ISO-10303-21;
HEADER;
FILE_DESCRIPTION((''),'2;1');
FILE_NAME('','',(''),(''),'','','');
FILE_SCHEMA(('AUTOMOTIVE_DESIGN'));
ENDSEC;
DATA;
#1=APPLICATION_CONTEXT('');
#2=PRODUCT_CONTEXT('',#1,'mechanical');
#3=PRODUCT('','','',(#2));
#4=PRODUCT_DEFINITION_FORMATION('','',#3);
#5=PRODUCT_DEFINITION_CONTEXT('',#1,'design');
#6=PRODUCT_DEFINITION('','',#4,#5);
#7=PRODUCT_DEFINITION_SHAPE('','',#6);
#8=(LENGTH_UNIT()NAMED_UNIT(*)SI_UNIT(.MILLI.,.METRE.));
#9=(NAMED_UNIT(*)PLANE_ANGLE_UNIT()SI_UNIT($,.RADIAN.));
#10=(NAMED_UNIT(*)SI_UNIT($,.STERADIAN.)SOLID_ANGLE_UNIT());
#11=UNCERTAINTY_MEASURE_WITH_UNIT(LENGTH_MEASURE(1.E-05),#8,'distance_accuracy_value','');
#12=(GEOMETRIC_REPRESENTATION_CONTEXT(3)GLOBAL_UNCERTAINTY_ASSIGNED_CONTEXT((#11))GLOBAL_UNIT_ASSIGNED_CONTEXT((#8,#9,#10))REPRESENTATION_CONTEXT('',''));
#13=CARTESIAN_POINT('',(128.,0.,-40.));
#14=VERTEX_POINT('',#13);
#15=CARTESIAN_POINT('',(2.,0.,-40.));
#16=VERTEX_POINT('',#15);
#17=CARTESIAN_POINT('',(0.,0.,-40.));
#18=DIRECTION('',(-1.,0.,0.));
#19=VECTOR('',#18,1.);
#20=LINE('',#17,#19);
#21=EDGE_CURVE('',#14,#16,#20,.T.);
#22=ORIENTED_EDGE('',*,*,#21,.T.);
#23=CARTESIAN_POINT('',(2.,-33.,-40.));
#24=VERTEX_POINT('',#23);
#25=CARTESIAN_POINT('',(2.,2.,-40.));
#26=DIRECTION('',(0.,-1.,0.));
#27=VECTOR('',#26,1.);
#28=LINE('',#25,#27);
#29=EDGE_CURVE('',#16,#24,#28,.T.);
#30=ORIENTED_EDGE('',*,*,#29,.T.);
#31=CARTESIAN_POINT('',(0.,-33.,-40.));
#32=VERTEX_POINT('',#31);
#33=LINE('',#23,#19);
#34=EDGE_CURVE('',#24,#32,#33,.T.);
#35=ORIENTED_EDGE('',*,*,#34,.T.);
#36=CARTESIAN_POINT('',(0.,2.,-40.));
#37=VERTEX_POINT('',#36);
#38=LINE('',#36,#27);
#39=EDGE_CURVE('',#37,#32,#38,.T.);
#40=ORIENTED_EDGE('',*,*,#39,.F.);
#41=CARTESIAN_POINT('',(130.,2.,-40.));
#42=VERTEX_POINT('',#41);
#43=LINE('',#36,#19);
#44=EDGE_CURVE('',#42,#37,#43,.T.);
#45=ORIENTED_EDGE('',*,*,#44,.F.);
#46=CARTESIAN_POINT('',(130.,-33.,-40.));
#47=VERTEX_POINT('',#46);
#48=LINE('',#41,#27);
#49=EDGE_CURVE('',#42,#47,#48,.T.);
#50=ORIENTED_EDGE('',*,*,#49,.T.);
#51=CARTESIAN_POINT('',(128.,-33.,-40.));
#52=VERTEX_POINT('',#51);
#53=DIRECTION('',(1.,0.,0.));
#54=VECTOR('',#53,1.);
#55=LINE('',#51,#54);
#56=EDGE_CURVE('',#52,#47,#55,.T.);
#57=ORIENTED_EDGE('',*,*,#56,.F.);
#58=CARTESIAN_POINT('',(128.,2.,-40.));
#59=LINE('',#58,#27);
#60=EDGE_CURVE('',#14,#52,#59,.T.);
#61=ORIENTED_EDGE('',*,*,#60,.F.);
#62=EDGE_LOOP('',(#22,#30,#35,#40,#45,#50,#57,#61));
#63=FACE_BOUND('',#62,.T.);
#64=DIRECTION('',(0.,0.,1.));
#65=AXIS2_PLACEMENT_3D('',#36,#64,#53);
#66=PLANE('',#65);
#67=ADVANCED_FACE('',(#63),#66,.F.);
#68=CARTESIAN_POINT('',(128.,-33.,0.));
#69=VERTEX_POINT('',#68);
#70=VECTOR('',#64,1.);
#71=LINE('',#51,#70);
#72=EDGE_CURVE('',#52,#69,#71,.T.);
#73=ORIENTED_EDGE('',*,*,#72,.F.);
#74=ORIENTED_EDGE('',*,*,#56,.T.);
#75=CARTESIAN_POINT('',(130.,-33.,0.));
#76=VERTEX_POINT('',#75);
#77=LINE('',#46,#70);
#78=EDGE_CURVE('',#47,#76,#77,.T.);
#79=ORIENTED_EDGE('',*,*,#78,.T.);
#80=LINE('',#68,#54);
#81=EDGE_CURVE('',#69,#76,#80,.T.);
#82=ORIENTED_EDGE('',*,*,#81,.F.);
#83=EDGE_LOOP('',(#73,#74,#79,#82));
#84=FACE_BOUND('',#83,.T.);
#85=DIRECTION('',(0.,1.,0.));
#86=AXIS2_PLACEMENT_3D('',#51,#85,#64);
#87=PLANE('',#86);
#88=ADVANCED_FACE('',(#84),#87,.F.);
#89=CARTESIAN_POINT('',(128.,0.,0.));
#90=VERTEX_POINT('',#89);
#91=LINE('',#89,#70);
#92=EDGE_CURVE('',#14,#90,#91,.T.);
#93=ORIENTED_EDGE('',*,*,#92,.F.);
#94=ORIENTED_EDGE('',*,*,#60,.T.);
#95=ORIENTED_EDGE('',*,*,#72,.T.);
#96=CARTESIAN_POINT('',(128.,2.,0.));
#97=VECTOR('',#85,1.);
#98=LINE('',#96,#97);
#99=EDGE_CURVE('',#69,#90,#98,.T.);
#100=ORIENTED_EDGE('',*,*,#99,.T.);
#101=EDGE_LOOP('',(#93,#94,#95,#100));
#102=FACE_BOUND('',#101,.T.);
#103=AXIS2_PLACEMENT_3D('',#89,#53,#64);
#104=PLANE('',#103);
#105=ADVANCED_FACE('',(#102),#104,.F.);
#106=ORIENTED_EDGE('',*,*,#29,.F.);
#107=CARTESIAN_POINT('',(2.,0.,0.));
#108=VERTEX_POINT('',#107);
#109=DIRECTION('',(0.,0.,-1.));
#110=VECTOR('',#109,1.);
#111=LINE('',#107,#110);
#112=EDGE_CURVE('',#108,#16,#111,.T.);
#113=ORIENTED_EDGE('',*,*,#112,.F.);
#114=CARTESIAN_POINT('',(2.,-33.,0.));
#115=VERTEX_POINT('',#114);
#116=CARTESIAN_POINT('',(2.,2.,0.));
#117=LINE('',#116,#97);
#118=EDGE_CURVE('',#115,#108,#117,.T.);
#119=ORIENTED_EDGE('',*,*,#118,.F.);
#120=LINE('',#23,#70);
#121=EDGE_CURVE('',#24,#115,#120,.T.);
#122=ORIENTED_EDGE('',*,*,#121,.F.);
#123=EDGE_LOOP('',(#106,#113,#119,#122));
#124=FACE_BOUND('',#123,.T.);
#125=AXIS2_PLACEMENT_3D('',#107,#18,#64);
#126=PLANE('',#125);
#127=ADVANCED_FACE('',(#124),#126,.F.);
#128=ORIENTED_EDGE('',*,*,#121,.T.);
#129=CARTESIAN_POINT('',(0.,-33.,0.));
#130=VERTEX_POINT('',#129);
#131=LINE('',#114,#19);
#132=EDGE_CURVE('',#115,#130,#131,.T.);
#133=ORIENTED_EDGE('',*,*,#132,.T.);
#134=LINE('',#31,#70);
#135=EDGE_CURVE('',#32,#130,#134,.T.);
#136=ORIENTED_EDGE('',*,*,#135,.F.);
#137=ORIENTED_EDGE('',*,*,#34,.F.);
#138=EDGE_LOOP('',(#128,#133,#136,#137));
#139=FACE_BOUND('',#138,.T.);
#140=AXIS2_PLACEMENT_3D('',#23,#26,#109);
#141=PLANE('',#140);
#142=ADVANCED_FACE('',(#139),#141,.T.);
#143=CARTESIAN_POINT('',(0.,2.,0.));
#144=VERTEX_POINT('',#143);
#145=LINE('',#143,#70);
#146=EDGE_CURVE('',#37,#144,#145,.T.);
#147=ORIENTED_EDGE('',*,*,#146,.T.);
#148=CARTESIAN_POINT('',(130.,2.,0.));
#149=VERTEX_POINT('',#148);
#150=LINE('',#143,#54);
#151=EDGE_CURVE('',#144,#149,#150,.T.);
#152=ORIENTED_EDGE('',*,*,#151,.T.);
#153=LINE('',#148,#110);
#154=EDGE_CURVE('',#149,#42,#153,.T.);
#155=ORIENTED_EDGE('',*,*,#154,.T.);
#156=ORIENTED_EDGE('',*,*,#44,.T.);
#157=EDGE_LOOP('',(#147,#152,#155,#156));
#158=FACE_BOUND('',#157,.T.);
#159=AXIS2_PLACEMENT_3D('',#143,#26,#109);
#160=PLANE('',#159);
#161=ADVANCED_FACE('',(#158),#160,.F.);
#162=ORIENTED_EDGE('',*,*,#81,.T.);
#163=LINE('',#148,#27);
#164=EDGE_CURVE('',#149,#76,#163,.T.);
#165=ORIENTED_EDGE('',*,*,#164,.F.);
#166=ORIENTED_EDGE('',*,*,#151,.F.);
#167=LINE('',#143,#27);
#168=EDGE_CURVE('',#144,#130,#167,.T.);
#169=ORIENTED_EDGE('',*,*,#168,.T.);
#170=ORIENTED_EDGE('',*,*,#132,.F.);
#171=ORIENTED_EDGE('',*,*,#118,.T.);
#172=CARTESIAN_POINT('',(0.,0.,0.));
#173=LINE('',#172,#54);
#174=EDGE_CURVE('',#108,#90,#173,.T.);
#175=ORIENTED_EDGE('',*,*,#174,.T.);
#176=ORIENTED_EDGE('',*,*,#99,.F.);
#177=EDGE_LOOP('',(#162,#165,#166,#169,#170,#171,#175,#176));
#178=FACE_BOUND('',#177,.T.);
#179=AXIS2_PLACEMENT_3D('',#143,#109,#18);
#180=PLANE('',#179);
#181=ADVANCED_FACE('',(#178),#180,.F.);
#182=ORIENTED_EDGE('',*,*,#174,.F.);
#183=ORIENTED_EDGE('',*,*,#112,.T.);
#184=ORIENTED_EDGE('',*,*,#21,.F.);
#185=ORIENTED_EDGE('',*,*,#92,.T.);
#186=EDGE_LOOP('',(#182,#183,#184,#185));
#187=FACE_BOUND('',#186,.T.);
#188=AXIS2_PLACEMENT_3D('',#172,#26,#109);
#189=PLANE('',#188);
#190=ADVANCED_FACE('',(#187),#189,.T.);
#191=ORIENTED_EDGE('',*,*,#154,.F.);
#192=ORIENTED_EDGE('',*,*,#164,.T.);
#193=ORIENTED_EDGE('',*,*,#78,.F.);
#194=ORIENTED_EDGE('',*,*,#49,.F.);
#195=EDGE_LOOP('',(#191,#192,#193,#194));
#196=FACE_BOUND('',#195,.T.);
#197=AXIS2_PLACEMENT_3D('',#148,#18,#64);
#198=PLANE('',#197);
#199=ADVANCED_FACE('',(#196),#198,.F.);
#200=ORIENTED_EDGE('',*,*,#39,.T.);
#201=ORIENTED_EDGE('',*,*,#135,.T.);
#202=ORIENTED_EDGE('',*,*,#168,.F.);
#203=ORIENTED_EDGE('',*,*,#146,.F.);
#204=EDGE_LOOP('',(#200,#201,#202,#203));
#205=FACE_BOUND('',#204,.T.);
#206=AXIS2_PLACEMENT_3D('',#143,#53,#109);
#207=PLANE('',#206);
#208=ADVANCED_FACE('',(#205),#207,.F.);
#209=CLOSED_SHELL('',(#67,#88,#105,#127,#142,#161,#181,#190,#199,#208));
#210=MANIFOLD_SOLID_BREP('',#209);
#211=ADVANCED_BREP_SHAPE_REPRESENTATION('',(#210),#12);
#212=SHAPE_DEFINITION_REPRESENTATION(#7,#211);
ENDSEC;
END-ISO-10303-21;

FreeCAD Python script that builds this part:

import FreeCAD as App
import Part
import Sketcher
from FreeCAD import Vector

doc = App.newDocument("Part")
body = doc.addObject("PartDesign::Body", "Body")

sketch1 = body.newObject("Sketcher::SketchObject", "Sketch")
sketch1.AttachmentSupport = (doc.getObject("XZ_Plane"), [""])
sketch1.MapMode = "FlatFace"
sketch1.addGeometry([
    Part.LineSegment(Vector(0, -40, 0), Vector(0, 0, 0)),
    Part.LineSegment(Vector(0, 0, 0), Vector(130, 0, 0)),
    Part.LineSegment(Vector(130, 0, 0), Vector(130, -40, 0)),
    Part.LineSegment(Vector(130, -40, 0), Vector(0, -40, 0)),
], False)
sketch1.addConstraint([
    Sketcher.Constraint("Coincident", 0, 2, 1, 1),
    Sketcher.Constraint("Coincident", 1, 2, 2, 1),
    Sketcher.Constraint("Coincident", 2, 2, 3, 1),
    Sketcher.Constraint("Coincident", 3, 2, 0, 1),
    Sketcher.Constraint("Vertical", 0),
    Sketcher.Constraint("Horizontal", 1),
    Sketcher.Constraint("Vertical", 2),
    Sketcher.Constraint("Horizontal", 3),
    Sketcher.Constraint("Coincident", 0, 2, -1, 1),
    Sketcher.Constraint("DistanceX", 1, 1, 1, 2, 130.0),
    Sketcher.Constraint("DistanceY", 0, 1, 0, 2, 40.0),
])
pad1 = body.newObject("PartDesign::Pad", "Pad")
pad1.Profile = sketch1
pad1.Length = 2
pad1.Reversed = True

sketch2 = body.newObject("Sketcher::SketchObject", "Sketch001")
sketch2.AttachmentSupport = (doc.getObject("YZ_Plane"), [""])
sketch2.MapMode = "FlatFace"
sketch2.addGeometry([
    Part.LineSegment(Vector(2, -40, 0), Vector(-33, -40, 0)),
    Part.LineSegment(Vector(-33, -40, 0), Vector(-33, 0, 0)),
    Part.LineSegment(Vector(-33, 0, 0), Vector(2, 0, 0)),
    Part.LineSegment(Vector(2, 0, 0), Vector(2, -40, 0)),
], False)
sketch2.addConstraint([
    Sketcher.Constraint("Coincident", 0, 2, 1, 1),
    Sketcher.Constraint("Coincident", 1, 2, 2, 1),
    Sketcher.Constraint("Coincident", 2, 2, 3, 1),
    Sketcher.Constraint("Coincident", 3, 2, 0, 1),
    Sketcher.Constraint("Horizontal", 0),
    Sketcher.Constraint("Vertical", 1),
    Sketcher.Constraint("Horizontal", 2),
    Sketcher.Constraint("Vertical", 3),
    Sketcher.Constraint("PointOnObject", 1, 2, -1),
    Sketcher.Constraint("DistanceX", 0, 2, 0, 1, 35.0),
    Sketcher.Constraint("DistanceY", 1, 1, 1, 2, 40.0),
    Sketcher.Constraint("DistanceX", 0, 2, -1, 1, 33.0),
])
pad2 = body.newObject("PartDesign::Pad", "Pad001")
pad2.Profile = sketch2
pad2.Length = 2
doc.recompute()

datumplane = body.newObject("PartDesign::Plane", "DatumPlane")
datumplane.AttachmentSupport = (doc.getObject("YZ_Plane"), [""])
datumplane.MapMode = "FlatFace"
datumplane.AttachmentOffset = App.Placement(Vector(0, 0, 65), App.Rotation())
mirrored = body.newObject("PartDesign::Mirrored", "Mirrored")
mirrored.Originals = [pad2]
mirrored.MirrorPlane = (datumplane, [""])
body.Tip = mirrored

doc.recompute()
